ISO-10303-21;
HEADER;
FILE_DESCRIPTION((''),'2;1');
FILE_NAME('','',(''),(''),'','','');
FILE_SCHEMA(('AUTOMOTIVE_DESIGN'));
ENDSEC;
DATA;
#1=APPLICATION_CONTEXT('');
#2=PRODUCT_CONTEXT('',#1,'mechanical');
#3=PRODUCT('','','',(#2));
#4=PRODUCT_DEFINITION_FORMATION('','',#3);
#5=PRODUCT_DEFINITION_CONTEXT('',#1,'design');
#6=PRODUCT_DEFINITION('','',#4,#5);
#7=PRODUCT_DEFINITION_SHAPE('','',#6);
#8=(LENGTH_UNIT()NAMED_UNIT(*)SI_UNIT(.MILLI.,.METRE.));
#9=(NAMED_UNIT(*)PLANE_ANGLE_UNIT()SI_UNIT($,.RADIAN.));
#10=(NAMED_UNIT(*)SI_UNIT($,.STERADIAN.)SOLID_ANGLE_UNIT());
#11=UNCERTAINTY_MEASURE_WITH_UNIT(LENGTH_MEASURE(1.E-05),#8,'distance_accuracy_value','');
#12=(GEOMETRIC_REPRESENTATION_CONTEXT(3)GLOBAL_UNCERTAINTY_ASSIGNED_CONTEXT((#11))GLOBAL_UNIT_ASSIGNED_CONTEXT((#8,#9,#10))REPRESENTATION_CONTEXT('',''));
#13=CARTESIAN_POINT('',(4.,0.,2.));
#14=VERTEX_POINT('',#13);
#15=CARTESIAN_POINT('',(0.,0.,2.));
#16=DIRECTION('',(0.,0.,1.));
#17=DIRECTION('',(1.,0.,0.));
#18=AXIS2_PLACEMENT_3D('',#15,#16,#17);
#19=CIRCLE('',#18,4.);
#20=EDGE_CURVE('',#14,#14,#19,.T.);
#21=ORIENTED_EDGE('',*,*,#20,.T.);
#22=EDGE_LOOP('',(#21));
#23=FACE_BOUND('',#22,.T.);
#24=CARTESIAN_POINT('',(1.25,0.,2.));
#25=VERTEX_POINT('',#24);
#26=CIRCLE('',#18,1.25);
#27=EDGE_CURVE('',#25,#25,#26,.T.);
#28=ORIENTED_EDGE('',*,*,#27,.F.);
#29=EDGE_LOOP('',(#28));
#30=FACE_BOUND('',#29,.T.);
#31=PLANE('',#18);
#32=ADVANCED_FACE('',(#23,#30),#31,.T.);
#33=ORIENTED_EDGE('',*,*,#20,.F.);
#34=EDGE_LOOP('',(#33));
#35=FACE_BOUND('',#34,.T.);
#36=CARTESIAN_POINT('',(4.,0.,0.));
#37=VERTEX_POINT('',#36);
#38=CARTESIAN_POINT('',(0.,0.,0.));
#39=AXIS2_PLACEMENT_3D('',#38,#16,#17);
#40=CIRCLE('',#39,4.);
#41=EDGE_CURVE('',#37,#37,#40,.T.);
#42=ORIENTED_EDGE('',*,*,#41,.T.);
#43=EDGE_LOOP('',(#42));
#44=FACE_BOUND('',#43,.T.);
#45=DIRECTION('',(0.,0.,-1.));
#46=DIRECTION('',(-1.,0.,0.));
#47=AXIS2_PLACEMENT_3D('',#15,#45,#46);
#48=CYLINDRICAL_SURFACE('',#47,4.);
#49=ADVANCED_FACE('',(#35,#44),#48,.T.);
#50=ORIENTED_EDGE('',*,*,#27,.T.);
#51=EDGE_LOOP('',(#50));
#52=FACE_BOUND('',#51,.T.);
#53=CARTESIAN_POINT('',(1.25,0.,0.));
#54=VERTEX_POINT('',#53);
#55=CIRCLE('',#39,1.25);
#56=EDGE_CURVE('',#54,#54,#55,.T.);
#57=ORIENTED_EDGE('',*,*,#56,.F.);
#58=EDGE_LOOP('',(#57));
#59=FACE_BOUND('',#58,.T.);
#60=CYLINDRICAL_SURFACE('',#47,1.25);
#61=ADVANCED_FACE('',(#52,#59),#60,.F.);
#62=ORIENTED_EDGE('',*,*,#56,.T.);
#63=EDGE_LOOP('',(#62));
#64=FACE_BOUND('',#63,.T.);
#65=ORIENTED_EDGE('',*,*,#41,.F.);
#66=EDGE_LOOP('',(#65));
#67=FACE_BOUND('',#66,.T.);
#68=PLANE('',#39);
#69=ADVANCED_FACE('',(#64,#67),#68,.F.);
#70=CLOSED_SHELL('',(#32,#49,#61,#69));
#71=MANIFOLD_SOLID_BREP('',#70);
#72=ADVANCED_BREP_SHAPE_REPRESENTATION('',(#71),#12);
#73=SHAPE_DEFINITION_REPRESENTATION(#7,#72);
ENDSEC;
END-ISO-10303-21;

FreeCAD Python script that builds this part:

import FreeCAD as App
import Part
import Sketcher

doc = App.newDocument("Part")
params = doc.addObject("Spreadsheet::Sheet", "Params")
for row, (alias, value) in enumerate([
    ("sketch1_diameter", "8 mm"),
    ("sketch1_diameter2", "2.5 mm"),
    ("pad1_length", "2 mm"),
], start=1):
    params.set(f"A{row}", alias)
    params.set(f"B{row}", "=" + value)
    params.setAlias(f"B{row}", alias)

body = doc.addObject("PartDesign::Body", "Body")

# Sketch on XY plane
sketch1 = body.newObject("Sketcher::SketchObject", "Sketch")
sketch1.AttachmentSupport = (doc.getObject("XY_Plane"), [""])
sketch1.MapMode = "FlatFace"
sketch1.addGeometry(Part.Circle(App.Vector(0, 0, 0), App.Vector(0, 0, 1), 4), False)
sketch1.addGeometry(Part.Circle(App.Vector(0, 0, 0), App.Vector(0, 0, 1), 1.2), False)
sketch1.addConstraint(Sketcher.Constraint("Coincident", 0, 3, -1, 1))
sketch1.addConstraint(Sketcher.Constraint("Coincident", 1, 3, -1, 1))
sketch1.addConstraint(Sketcher.Constraint("Diameter", 0, 8.0))
sketch1.addConstraint(Sketcher.Constraint("Diameter", 1, 2.5))
sketch1.setExpression("Constraints[2]", "Params.sketch1_diameter")
sketch1.setExpression("Constraints[3]", "Params.sketch1_diameter2")
pad1 = body.newObject("PartDesign::Pad", "Pad")
pad1.Profile = sketch1
pad1.setExpression("Length", "Params.pad1_length")

doc.recompute()
